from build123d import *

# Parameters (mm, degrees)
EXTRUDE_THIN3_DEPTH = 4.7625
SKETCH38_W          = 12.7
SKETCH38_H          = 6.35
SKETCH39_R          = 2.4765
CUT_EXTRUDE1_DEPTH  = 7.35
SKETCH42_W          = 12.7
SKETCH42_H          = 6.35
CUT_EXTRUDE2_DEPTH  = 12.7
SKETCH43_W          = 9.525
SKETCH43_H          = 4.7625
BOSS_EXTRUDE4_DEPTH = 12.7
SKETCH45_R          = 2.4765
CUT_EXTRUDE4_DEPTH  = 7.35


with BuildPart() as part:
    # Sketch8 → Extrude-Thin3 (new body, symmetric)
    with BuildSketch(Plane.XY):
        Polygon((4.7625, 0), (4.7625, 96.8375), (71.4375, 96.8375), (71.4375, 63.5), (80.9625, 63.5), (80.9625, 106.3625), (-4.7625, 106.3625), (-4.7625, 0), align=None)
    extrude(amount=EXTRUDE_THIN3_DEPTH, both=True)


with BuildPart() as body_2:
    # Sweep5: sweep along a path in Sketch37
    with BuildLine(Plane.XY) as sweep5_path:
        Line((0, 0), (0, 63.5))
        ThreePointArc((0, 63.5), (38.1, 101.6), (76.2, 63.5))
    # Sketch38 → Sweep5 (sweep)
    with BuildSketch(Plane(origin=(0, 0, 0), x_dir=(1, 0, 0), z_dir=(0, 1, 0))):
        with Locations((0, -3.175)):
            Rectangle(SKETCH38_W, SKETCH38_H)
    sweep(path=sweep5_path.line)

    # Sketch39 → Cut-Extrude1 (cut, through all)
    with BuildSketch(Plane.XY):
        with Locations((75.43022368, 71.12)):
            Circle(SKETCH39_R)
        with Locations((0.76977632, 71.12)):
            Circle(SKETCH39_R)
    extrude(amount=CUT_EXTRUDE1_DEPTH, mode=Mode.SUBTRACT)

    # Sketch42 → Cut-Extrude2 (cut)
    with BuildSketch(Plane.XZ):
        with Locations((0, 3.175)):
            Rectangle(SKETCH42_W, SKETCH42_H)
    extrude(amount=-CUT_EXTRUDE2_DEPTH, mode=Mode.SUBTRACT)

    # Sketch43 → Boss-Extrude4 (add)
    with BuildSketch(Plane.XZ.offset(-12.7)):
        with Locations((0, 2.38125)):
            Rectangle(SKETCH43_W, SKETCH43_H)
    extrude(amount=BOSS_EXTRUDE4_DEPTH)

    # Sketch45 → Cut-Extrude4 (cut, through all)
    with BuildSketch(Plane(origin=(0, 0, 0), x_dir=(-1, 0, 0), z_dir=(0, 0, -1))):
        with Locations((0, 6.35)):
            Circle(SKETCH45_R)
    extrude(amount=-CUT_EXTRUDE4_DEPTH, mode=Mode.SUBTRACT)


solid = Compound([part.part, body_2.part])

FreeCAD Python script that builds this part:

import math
import FreeCAD as App
import Part
import Sketcher
from FreeCAD import Vector
Q = App.Units.Quantity


def add_polygon(sketch, points):
    """Adds a closed chain of lines whose ends are joined by coincident constraints."""
    first, n = sketch.GeometryCount, len(points)
    for a, b in zip(points, points[1:] + points[:1]):
        sketch.addGeometry(Part.LineSegment(App.Vector(*a, 0), App.Vector(*b, 0)), False)
    for i in range(n):
        sketch.addConstraint(Sketcher.Constraint("Coincident", first + i, 2, first + (i + 1) % n, 1))

doc = App.newDocument("Part")
body = doc.addObject("PartDesign::Body", "Body")

# Sketch on XY plane
sketch1 = body.newObject("Sketcher::SketchObject", "Sketch")
sketch1.AttachmentSupport = (doc.getObject("XY_Plane"), [""])
sketch1.MapMode = "FlatFace"
add_polygon(sketch1, [(4.7625, 0), (4.7625, 96.8375), (71.4375, 96.8375), (71.4375, 63.5), (80.9625, 63.5), (80.9625, 106.3625), (-4.7625, 106.3625), (-4.7625, 0)])  # lines 0-7
sketch1.addConstraint([
    Sketcher.Constraint("Vertical", 0),
    Sketcher.Constraint("Horizontal", 1),
    Sketcher.Constraint("Vertical", 2),
    Sketcher.Constraint("Horizontal", 3),
    Sketcher.Constraint("Vertical", 4),
    Sketcher.Constraint("Horizontal", 5),
    Sketcher.Constraint("Vertical", 6),
    Sketcher.Constraint("Horizontal", 7),
    Sketcher.Constraint("Symmetric", 6, 2, 7, 2, -1, 1),
    Sketcher.Constraint("Equal", 3, 7),
    Sketcher.Constraint("DistanceX", 0, 2, 3, 2, Q("3 in")),
    Sketcher.Constraint("DistanceY", -1, 1, 2, 2, Q("2.5 in")),
    Sketcher.Constraint("DistanceX", 1, 1, 1, 2, Q("2.625 in")),
    Sketcher.Constraint("DistanceY", 0, 1, 0, 2, Q("3.8125 in")),
    Sketcher.Constraint("DistanceY", 4, 1, 4, 2, Q("1.6875 in")),
])
pad1 = body.newObject("PartDesign::Pad", "Pad")
pad1.Profile = sketch1
pad1.Length = Q("0.375 in")
pad1.Midplane = True
body2 = doc.addObject("PartDesign::Body", "Body001")

# Sketch on XZ plane
sketch2 = body2.newObject("Sketcher::SketchObject", "Sketch001")
sketch2.AttachmentSupport = (doc.getObject("XZ_Plane001"), [""])
sketch2.MapMode = "FlatFace"
add_polygon(sketch2, [(-6.35, 0), (-6.35, 6.35), (6.35, 6.35), (6.35, 0)])  # lines 0-3
sketch2.addConstraint([
    Sketcher.Constraint("Vertical", 0),
    Sketcher.Constraint("Horizontal", 1),
    Sketcher.Constraint("Vertical", 2),
    Sketcher.Constraint("Horizontal", 3),
    Sketcher.Constraint("Symmetric", 2, 2, 3, 2, -1, 1),
    Sketcher.Constraint("DistanceX", 1, 1, 1, 2, Q("0.5 in")),
    Sketcher.Constraint("DistanceY", 0, 1, 0, 2, Q("0.25 in")),
])

# Sketch on XY plane
sketch3 = body2.newObject("Sketcher::SketchObject", "Sketch002")
sketch3.AttachmentSupport = (doc.getObject("XY_Plane001"), [""])
sketch3.MapMode = "FlatFace"
sketch3.addGeometry([
    Part.LineSegment(Vector(0, 0, 0), Vector(0, 63.5, 0)),
    Part.ArcOfCircle(Part.Circle(Vector(38.1, 63.5, 0), Vector(0, 0, 1), 38.1), math.radians(0), math.radians(180)),
], False)
sketch3.addConstraint([
    Sketcher.Constraint("Tangent", 0, 2, 1, 2),
    Sketcher.Constraint("Vertical", 0),
    Sketcher.Constraint("Coincident", 0, 1, -1, 1),
    Sketcher.Constraint("Horizontal", 0, 2, 1, 1),
    Sketcher.Constraint("Radius", 1, Q("1.5 in")),
    Sketcher.Constraint("DistanceY", 0, 1, 0, 2, Q("2.5 in")),
])
doc.recompute()

additivepipe = body2.newObject("PartDesign::AdditivePipe", "AdditivePipe")
additivepipe.Profile = sketch2
additivepipe.Spine = (sketch3, ["Edge1", "Edge2"])

# Sketch on XY plane
sketch4 = body2.newObject("Sketcher::SketchObject", "Sketch003")
sketch4.AttachmentSupport = (doc.getObject("XY_Plane001"), [""])
sketch4.MapMode = "FlatFace"
sketch4.addGeometry([
    Part.Circle(Vector(75.430224, 71.12, 0), Vector(0, 0, 1), 2.4765),
    Part.Circle(Vector(0.769776, 71.12, 0), Vector(0, 0, 1), 2.4765),
], False)
sketch4.addConstraint([
    Sketcher.Constraint("Equal", 0, 1),
    Sketcher.Constraint("Horizontal", 0, 3, 1, 3),
    Sketcher.Constraint("Diameter", 0, Q("0.195 in")),
    Sketcher.Constraint("DistanceY", -1, 1, 0, 3, Q("2.8 in")),
    Sketcher.Constraint("DistanceX", -1, 1, 0, 3, Q("75.430224 mm")),
    Sketcher.Constraint("DistanceX", -1, 1, 1, 3, Q("0.769776 mm")),
])
pocket1 = body2.newObject("PartDesign::Pocket", "Pocket")
pocket1.Profile = sketch4
pocket1.Type = "ThroughAll"
pocket1.Reversed = True

# Sketch on XZ plane
sketch5 = body2.newObject("Sketcher::SketchObject", "Sketch004")
sketch5.AttachmentSupport = (doc.getObject("XZ_Plane001"), [""])
sketch5.MapMode = "FlatFace"
add_polygon(sketch5, [(-6.35, 6.35), (-6.35, 0), (6.35, 0), (6.35, 6.35)])  # lines 0-3
sketch5.addConstraint([
    Sketcher.Constraint("Vertical", 0),
    Sketcher.Constraint("Horizontal", 1),
    Sketcher.Constraint("Vertical", 2),
    Sketcher.Constraint("Horizontal", 3),
    Sketcher.Constraint("Symmetric", 0, 2, 1, 2, -1, 1),
    Sketcher.Constraint("DistanceX", 1, 1, 1, 2, Q("0.5 in")),
    Sketcher.Constraint("DistanceY", 0, 2, 0, 1, Q("0.25 in")),
])
pocket2 = body2.newObject("PartDesign::Pocket", "Pocket001")
pocket2.Profile = sketch5
pocket2.Length = Q("0.5 in")

# Sketch on XZ plane
sketch6 = body2.newObject("Sketcher::SketchObject", "Sketch005")
sketch6.AttachmentSupport = (doc.getObject("XZ_Plane001"), [""])
sketch6.MapMode = "FlatFace"
sketch6.AttachmentOffset = App.Placement(Vector(0, 0, -0.5 * 25.4), App.Rotation())
add_polygon(sketch6, [(-4.7625, 4.7625), (-4.7625, 0), (4.7625, 0), (4.7625, 4.7625)])  # lines 0-3
sketch6.addConstraint([
    Sketcher.Constraint("Vertical", 0),
    Sketcher.Constraint("Horizontal", 1),
    Sketcher.Constraint("Vertical", 2),
    Sketcher.Constraint("Horizontal", 3),
    Sketcher.Constraint("Symmetric", 0, 2, 1, 2, -1, 1),
    Sketcher.Constraint("DistanceX", 1, 1, 1, 2, Q("0.375 in")),
    Sketcher.Constraint("DistanceY", 0, 2, 0, 1, Q("0.1875 in")),
])
pad2 = body2.newObject("PartDesign::Pad", "Pad001")
pad2.Profile = sketch6
pad2.Length = Q("0.5 in")

# Sketch on XY plane
sketch7 = body2.newObject("Sketcher::SketchObject", "Sketch006")
sketch7.AttachmentSupport = (doc.getObject("XY_Plane001"), [""])
sketch7.MapMode = "FlatFace"
sketch7.addGeometry(Part.Circle(Vector(0, 6.35, 0), Vector(0, 0, 1), 2.4765), False)
sketch7.addConstraint([
    Sketcher.Constraint("PointOnObject", 0, 3, -2),
    Sketcher.Constraint("Diameter", 0, Q("0.195 in")),
    Sketcher.Constraint("DistanceY", -1, 1, 0, 3, Q("0.25 in")),
])
pocket3 = body2.newObject("PartDesign::Pocket", "Pocket002")
pocket3.Profile = sketch7
pocket3.Type = "ThroughAll"
pocket3.Reversed = True

doc.recompute()
